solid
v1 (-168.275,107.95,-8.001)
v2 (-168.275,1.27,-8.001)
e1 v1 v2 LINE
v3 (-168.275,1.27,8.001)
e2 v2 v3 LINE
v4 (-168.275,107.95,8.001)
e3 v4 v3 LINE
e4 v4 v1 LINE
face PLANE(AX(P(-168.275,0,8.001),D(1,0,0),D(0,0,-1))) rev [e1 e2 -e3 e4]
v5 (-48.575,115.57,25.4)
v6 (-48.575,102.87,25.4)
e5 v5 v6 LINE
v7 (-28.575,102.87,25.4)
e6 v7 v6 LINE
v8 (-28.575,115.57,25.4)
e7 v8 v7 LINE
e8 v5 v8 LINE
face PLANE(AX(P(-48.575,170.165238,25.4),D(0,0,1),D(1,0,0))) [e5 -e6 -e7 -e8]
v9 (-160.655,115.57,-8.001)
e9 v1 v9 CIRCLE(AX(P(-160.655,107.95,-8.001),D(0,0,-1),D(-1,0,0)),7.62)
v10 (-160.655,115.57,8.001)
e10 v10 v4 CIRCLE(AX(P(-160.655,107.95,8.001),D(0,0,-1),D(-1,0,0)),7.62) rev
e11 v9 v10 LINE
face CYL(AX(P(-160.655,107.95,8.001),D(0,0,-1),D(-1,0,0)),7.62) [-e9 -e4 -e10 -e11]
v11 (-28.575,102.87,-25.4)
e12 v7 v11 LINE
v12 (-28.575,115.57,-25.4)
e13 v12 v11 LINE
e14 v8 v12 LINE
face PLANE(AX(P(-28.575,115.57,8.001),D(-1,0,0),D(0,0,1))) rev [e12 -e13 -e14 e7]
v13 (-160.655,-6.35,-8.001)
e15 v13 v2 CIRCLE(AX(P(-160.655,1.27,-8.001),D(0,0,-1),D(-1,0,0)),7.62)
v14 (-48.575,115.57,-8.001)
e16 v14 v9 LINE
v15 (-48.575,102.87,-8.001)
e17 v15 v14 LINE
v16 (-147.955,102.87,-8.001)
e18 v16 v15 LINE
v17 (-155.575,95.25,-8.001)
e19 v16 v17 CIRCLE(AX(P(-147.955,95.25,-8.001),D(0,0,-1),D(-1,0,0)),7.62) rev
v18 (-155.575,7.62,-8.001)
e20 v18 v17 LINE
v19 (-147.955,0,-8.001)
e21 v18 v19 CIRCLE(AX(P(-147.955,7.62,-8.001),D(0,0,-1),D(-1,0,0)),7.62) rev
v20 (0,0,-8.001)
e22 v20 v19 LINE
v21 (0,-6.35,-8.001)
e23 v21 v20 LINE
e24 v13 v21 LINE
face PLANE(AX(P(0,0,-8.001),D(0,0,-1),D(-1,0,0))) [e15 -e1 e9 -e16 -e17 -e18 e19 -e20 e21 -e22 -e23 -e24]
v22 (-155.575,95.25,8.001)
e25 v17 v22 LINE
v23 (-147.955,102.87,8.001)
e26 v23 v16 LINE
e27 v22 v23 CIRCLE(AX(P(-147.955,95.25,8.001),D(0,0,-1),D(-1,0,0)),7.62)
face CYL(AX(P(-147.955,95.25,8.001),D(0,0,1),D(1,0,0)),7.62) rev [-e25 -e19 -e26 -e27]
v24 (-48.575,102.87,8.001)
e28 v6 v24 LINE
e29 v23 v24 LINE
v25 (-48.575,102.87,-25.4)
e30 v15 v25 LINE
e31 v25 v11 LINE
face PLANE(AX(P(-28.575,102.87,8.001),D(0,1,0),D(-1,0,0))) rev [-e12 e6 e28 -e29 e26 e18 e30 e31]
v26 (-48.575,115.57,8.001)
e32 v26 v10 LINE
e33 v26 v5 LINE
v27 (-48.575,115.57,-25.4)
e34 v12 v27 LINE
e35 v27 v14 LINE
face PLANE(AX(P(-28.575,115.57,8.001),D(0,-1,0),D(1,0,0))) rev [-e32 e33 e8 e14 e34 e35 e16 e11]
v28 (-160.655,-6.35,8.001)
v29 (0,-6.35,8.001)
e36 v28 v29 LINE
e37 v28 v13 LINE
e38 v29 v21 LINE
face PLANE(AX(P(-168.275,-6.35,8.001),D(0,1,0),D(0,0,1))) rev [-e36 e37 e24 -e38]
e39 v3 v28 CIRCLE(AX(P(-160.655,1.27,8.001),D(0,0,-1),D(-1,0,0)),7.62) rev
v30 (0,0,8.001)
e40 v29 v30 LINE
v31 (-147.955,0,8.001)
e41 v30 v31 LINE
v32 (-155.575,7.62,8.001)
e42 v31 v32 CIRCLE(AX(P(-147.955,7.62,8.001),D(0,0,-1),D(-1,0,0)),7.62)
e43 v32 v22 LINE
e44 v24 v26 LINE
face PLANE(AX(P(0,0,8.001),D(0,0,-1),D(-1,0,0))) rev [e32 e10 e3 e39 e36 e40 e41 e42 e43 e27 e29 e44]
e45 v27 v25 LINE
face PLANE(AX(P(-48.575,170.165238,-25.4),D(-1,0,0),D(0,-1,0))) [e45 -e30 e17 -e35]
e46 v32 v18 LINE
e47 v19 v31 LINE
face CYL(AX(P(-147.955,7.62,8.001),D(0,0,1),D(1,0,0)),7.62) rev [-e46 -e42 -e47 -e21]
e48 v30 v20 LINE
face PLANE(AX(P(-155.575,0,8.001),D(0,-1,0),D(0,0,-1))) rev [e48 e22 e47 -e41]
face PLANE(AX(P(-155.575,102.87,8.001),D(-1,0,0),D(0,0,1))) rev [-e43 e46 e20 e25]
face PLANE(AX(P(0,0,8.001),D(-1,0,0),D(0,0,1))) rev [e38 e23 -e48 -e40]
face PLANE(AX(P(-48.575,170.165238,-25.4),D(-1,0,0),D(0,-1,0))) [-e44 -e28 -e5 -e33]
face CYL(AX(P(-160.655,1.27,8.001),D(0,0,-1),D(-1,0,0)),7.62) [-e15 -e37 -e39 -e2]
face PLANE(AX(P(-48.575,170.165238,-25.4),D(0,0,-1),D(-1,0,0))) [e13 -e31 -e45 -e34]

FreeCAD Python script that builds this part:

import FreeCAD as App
import Part
import Sketcher
from FreeCAD import Vector
Q = App.Units.Quantity


def edges_at(feature, points):
    """Names of the edges that pass closest to the given points."""
    edges = feature.Shape.Edges
    near = lambda p: min(range(len(edges)), key=lambda i: edges[i].distToShape(Part.Vertex(*p))[0])
    return sorted({f"Edge{near(p) + 1}" for p in points})


def add_polygon(sketch, points):
    """Adds a closed chain of lines whose ends are joined by coincident constraints."""
    first, n = sketch.GeometryCount, len(points)
    for a, b in zip(points, points[1:] + points[:1]):
        sketch.addGeometry(Part.LineSegment(App.Vector(*a, 0), App.Vector(*b, 0)), False)
    for i in range(n):
        sketch.addConstraint(Sketcher.Constraint("Coincident", first + i, 2, first + (i + 1) % n, 1))

doc = App.newDocument("Part")
body = doc.addObject("PartDesign::Body", "Body")

sketch1 = doc.addObject("Sketcher::SketchObject", "Sketch")
body.addObject(sketch1)
sketch1.AttachmentSupport = (doc.XY_Plane, [""])
sketch1.MapMode = "FlatFace"
add_polygon(sketch1, [(-29, 116), (-168, 116), (-168, -6), (0, -6), (0, 0), (-156, 0), (-156, 103), (-29, 103)])
sketch1.addConstraint(Sketcher.Constraint("Horizontal", 0))
sketch1.addConstraint(Sketcher.Constraint("Vertical", 1))
sketch1.addConstraint(Sketcher.Constraint("Horizontal", 2))
sketch1.addConstraint(Sketcher.Constraint("Vertical", 3))
sketch1.addConstraint(Sketcher.Constraint("Horizontal", 4))
sketch1.addConstraint(Sketcher.Constraint("Vertical", 5))
sketch1.addConstraint(Sketcher.Constraint("Horizontal", 6))
sketch1.addConstraint(Sketcher.Constraint("Vertical", 7))
sketch1.addConstraint(Sketcher.Constraint("Coincident", 3, 2, -1, 1))
sketch1.addConstraint(Sketcher.Constraint("DistanceX", 6, 1, 6, 2, Q("5 in")))
sketch1.addConstraint(Sketcher.Constraint("DistanceX", 0, 2, 0, 1, Q("5.5 in")))
sketch1.addConstraint(Sketcher.Constraint("DistanceY", 1, 2, 1, 1, Q("4.8 in")))
sketch1.addConstraint(Sketcher.Constraint("DistanceY", 7, 1, 7, 2, Q("0.5 in")))
sketch1.addConstraint(Sketcher.Constraint("DistanceY", 3, 1, 3, 2, Q("0.25 in")))
sketch1.addConstraint(Sketcher.Constraint("DistanceX", 2, 1, 2, 2, Q("6.625 in")))
pad1 = doc.addObject("PartDesign::Pad", "Pad")
body.addObject(pad1)
pad1.Profile = sketch1
pad1.Length = Q("0.63 in")
pad1.Midplane = True

sketch2 = doc.addObject("Sketcher::SketchObject", "Sketch001")
body.addObject(sketch2)
sketch2.AttachmentSupport = (doc.XZ_Plane, [""])
sketch2.MapMode = "FlatFace"
sketch2.AttachmentOffset = App.Placement(Vector(0, 0, -4.05 * 25.4), App.Rotation())
add_polygon(sketch2, [(-49, 25), (-49, -25), (-29, -25), (-29, 25)])
sketch2.addConstraint(Sketcher.Constraint("Vertical", 0))
sketch2.addConstraint(Sketcher.Constraint("Horizontal", 1))
sketch2.addConstraint(Sketcher.Constraint("Vertical", 2))
sketch2.addConstraint(Sketcher.Constraint("Horizontal", 3))
sketch2.addConstraint(Sketcher.Constraint("DistanceY", 0, 2, 0, 1, Q("2 in")))
sketch2.addConstraint(Sketcher.Constraint("DistanceY", 0, 2, -1, 1, Q("1 in")))
sketch2.addConstraint(Sketcher.Constraint("DistanceX", 1, 2, -1, 1, Q("1.125 in")))
sketch2.addConstraint(Sketcher.Constraint("DistanceX", 1, 1, 1, 2, Q("20 mm")))
pad2 = doc.addObject("PartDesign::Pad", "Pad001")
body.addObject(pad2)
pad2.Profile = sketch2
pad2.Length = Q("0.5 in")
pad2.Reversed = True
doc.recompute()

fillet = doc.addObject("PartDesign::Fillet", "Fillet")
body.addObject(fillet)
fillet.Base = (pad2, edges_at(pad2, [
    (-155.575, 102.87, 0),
    (-155.575, 0, 0),
    (-168.275, -6.35, 0),
    (-168.275, 115.57, 0),
]))
fillet.Radius = Q("0.3 in")

doc.recompute()
